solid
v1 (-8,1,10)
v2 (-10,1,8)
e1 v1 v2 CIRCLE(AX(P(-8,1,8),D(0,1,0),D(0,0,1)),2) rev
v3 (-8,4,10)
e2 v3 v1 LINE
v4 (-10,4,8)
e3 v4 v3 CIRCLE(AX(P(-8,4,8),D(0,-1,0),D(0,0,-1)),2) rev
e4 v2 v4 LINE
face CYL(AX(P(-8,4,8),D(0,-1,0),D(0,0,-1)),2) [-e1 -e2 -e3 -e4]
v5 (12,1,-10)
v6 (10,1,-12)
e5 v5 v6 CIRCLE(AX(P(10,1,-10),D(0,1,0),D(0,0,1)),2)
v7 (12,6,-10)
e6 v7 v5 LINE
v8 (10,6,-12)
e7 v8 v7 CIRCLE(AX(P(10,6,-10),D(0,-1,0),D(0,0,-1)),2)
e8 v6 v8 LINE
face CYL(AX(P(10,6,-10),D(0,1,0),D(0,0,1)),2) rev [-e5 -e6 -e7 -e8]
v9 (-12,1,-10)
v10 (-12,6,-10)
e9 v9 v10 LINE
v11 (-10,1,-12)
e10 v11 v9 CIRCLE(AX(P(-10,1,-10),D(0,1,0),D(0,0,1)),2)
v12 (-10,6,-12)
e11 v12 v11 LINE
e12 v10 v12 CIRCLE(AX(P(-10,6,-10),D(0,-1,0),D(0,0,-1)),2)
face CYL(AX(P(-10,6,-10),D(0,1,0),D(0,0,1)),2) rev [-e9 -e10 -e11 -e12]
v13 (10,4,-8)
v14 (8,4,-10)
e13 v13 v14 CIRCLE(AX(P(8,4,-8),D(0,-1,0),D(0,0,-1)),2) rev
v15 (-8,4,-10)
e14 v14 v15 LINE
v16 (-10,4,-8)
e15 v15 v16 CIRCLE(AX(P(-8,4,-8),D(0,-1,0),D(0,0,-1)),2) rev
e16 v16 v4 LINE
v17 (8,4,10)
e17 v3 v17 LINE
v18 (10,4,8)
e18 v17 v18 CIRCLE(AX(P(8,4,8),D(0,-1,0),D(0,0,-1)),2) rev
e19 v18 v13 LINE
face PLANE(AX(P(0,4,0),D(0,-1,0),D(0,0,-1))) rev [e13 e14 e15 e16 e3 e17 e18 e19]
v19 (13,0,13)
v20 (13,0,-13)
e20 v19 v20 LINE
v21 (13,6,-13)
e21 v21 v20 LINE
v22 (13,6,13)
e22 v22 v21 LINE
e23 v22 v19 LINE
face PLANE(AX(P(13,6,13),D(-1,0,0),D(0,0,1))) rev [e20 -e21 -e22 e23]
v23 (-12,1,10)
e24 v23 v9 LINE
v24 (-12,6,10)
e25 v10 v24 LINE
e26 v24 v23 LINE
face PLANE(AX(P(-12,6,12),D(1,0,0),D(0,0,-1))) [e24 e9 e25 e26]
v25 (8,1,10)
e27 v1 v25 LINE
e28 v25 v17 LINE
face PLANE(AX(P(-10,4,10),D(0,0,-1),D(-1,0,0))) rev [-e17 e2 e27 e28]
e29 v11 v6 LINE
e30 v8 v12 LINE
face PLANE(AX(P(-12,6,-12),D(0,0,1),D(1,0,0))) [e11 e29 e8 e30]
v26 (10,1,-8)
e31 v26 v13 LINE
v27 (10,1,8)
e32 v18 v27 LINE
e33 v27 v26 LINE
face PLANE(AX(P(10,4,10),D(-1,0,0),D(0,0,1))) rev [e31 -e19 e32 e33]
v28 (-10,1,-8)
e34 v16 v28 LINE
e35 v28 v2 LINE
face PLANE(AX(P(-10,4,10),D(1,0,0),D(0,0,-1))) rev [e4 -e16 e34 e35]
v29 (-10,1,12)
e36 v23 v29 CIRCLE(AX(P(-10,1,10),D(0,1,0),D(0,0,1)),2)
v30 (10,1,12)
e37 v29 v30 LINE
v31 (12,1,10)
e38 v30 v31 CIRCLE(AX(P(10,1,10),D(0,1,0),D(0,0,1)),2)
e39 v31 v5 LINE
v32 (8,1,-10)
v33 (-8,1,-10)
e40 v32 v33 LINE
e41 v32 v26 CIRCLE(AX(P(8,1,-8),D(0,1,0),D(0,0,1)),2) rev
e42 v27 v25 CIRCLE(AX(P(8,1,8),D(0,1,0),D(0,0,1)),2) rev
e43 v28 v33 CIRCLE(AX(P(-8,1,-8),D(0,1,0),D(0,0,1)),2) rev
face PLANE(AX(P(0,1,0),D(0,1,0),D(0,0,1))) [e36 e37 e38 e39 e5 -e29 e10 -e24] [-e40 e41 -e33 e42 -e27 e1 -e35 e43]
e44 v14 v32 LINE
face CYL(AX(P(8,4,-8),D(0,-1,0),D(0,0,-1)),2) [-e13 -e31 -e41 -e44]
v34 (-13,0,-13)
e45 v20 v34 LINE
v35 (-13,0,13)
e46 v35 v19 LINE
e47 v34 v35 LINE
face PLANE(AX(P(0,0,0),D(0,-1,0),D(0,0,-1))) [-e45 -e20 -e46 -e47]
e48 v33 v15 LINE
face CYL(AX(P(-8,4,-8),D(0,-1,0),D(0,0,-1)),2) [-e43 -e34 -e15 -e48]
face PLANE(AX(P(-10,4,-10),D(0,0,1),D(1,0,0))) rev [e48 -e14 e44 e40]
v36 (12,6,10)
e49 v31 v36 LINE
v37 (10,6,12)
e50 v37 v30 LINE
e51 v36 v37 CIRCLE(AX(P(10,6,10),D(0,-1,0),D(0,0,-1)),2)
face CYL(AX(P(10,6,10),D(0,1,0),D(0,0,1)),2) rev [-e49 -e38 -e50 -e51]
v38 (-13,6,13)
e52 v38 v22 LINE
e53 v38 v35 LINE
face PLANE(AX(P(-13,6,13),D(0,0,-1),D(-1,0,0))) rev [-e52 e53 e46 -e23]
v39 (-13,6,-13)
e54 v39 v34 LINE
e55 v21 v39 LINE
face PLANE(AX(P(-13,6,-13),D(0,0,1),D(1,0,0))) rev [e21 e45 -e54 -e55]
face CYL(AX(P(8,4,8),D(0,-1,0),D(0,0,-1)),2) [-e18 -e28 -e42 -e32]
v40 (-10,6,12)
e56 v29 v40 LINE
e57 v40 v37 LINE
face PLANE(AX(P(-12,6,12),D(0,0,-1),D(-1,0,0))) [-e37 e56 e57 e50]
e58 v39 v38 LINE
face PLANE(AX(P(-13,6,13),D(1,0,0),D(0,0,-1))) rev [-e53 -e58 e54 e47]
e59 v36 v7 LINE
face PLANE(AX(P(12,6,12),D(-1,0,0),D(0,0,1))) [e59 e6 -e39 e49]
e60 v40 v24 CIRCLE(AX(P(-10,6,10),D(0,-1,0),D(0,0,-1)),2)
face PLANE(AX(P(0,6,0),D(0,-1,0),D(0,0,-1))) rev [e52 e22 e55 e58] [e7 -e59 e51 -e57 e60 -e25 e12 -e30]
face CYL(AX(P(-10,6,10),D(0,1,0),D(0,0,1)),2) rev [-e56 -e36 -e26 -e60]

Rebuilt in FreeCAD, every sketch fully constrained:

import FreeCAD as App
import Part
import Sketcher

V = App.Vector
Q = App.Units.Quantity


def edges_at(feature, points):
    """Names of the edges that pass closest to the given points."""
    edges = feature.Shape.Edges
    near = lambda p: min(range(len(edges)), key=lambda i: edges[i].distToShape(Part.Vertex(*p))[0])
    return sorted({f"Edge{near(p) + 1}" for p in points})


def add_polygon(sketch, points):
    """Adds a closed chain of lines whose ends are joined by coincident constraints."""
    first, n = sketch.GeometryCount, len(points)
    for a, b in zip(points, points[1:] + points[:1]):
        sketch.addGeometry(Part.LineSegment(App.Vector(*a, 0), App.Vector(*b, 0)), False)
    for i in range(n):
        sketch.addConstraint(Sketcher.Constraint("Coincident", first + i, 2, first + (i + 1) % n, 1))

doc = App.newDocument("Part")
body = doc.addObject("PartDesign::Body", "Body")

# Sketch on XZ plane
sketch1 = body.newObject("Sketcher::SketchObject", "Sketch")
sketch1.AttachmentSupport = (doc.getObject("XZ_Plane"), [""])
sketch1.MapMode = "FlatFace"
add_polygon(sketch1, [(-10, -10), (-10, 10), (10, 10), (10, -10)])  # lines 0-3
sketch1.addConstraint(Sketcher.Constraint("Vertical", 0))
sketch1.addConstraint(Sketcher.Constraint("Horizontal", 1))
sketch1.addConstraint(Sketcher.Constraint("Vertical", 2))
sketch1.addConstraint(Sketcher.Constraint("Horizontal", 3))
sketch1.addConstraint(Sketcher.Constraint("Symmetric", 0, 2, 2, 2, -1, 1))
sketch1.addConstraint(Sketcher.Constraint("Equal", 3, 0))
sketch1.addConstraint(Sketcher.Constraint("DistanceX", 1, 1, 1, 2, Q("20 mm")))
pad1 = body.newObject("PartDesign::Pad", "Pad")
pad1.Profile = sketch1
pad1.Length = 4
pad1.Reversed = True

# Sketch on XZ plane
sketch2 = body.newObject("Sketcher::SketchObject", "Sketch001")
sketch2.AttachmentSupport = (doc.getObject("XZ_Plane"), [""])
sketch2.MapMode = "FlatFace"
add_polygon(sketch2, [(-12, -12), (-12, 12), (12, 12), (12, -12)])  # lines 0-3
sketch2.addConstraint(Sketcher.Constraint("Vertical", 0))
sketch2.addConstraint(Sketcher.Constraint("Horizontal", 1))
sketch2.addConstraint(Sketcher.Constraint("Vertical", 2))
sketch2.addConstraint(Sketcher.Constraint("Horizontal", 3))
sketch2.addConstraint(Sketcher.Constraint("Symmetric", 0, 2, 2, 2, -1, 1))
sketch2.addConstraint(Sketcher.Constraint("Equal", 3, 0))
sketch2.addConstraint(Sketcher.Constraint("DistanceX", 1, 1, 1, 2, Q("24 mm")))
pad2 = body.newObject("PartDesign::Pad", "Pad001")
pad2.Profile = sketch2
pad2.Length = 1
pad2.Reversed = True

# Sketch on XZ plane
sketch3 = body.newObject("Sketcher::SketchObject", "Sketch002")
sketch3.AttachmentSupport = (doc.getObject("XZ_Plane"), [""])
sketch3.MapMode = "FlatFace"
add_polygon(sketch3, [(-13, -13), (-13, 13), (13, 13), (13, -13)])  # lines 0-3
add_polygon(sketch3, [(12, 12), (-12, 12), (-12, -12), (12, -12)])  # lines 4-7
sketch3.addConstraint(Sketcher.Constraint("Vertical", 0))
sketch3.addConstraint(Sketcher.Constraint("Horizontal", 1))
sketch3.addConstraint(Sketcher.Constraint("Vertical", 2))
sketch3.addConstraint(Sketcher.Constraint("Horizontal", 3))
sketch3.addConstraint(Sketcher.Constraint("Horizontal", 4))
sketch3.addConstraint(Sketcher.Constraint("Vertical", 5))
sketch3.addConstraint(Sketcher.Constraint("Horizontal", 6))
sketch3.addConstraint(Sketcher.Constraint("Vertical", 7))
sketch3.addConstraint(Sketcher.Constraint("Symmetric", 0, 2, 2, 2, -1, 1))
sketch3.addConstraint(Sketcher.Constraint("Symmetric", 4, 2, 6, 2, -1, 1))
sketch3.addConstraint(Sketcher.Constraint("Equal", 3, 0))
sketch3.addConstraint(Sketcher.Constraint("Equal", 6, 5))
sketch3.addConstraint(Sketcher.Constraint("DistanceX", 1, 1, 1, 2, Q("26 mm")))
sketch3.addConstraint(Sketcher.Constraint("DistanceX", 4, 2, 4, 1, Q("24 mm")))
pad3 = body.newObject("PartDesign::Pad", "Pad002")
pad3.Profile = sketch3
pad3.Length = 6
pad3.Reversed = True
doc.recompute()

fillet = body.newObject("PartDesign::Fillet", "Fillet")
fillet.Base = (pad3, edges_at(pad3, [
    (10, 2.5, 10),
    (-10, 2.5, 10),
    (-10, 2.5, -10),
    (10, 2.5, -10),
]))
fillet.Radius = 2
doc.recompute()

fillet2 = body.newObject("PartDesign::Fillet", "Fillet001")
fillet2.Base = (fillet, edges_at(fillet, [
    (12, 3.5, -12),
    (-12, 3.5, -12),
    (-12, 3.5, 12),
    (12, 3.5, 12),
]))
fillet2.Radius = 2

doc.recompute()
